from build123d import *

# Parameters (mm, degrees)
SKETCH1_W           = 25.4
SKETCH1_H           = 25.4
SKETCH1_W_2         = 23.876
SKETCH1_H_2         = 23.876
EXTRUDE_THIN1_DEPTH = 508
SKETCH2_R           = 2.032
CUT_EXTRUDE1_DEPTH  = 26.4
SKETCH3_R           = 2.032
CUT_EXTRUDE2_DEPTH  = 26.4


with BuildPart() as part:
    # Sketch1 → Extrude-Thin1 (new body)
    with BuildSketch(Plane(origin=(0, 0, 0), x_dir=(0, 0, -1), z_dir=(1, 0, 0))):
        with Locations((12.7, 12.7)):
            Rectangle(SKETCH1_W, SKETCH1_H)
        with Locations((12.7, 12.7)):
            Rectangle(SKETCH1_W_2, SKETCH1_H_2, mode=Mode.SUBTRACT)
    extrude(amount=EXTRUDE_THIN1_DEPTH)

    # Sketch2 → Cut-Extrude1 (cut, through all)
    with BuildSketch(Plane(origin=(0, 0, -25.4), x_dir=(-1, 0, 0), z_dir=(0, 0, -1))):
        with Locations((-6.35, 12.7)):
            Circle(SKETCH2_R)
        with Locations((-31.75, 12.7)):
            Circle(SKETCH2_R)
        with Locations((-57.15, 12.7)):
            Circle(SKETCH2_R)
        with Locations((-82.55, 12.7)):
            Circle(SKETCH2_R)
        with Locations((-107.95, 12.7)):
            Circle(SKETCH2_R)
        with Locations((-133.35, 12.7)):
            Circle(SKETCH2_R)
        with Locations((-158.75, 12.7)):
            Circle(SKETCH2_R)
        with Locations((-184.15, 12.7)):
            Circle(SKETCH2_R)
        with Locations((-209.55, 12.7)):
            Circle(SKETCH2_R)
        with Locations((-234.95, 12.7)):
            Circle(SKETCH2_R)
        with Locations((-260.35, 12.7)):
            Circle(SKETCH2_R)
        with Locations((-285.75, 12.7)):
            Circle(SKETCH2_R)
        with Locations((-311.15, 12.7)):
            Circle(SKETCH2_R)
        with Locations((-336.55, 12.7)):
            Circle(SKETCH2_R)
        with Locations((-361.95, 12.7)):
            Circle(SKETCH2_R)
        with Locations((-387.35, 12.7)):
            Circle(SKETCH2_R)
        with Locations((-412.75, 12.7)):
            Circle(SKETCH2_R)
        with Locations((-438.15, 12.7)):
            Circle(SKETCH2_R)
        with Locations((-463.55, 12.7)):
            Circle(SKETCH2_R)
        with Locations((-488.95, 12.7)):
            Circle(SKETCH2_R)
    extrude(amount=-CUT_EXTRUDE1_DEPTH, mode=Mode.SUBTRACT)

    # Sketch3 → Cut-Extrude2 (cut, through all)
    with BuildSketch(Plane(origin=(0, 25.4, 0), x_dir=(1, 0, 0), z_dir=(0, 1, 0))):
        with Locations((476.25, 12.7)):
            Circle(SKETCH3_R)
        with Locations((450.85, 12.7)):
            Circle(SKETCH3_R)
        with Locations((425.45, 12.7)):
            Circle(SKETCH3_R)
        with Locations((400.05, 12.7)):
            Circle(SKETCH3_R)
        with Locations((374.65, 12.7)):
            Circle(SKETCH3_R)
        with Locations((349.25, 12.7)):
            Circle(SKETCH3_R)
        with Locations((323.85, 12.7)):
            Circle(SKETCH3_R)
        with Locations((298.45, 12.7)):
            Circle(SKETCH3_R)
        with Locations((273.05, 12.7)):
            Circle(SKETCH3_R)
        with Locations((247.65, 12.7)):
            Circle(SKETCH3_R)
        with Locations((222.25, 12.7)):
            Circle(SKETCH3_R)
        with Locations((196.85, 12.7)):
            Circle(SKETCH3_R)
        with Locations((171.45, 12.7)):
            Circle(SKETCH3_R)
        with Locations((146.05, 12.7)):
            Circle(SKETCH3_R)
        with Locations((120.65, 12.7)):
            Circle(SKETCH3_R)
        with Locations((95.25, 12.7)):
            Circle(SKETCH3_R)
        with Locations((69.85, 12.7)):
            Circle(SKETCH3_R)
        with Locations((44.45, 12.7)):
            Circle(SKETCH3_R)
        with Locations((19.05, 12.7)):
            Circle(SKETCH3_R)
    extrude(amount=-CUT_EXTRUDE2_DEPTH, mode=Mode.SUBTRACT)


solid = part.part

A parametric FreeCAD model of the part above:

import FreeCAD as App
import Part
import Sketcher

V = App.Vector
Q = App.Units.Quantity


def add_polygon(sketch, points):
    """Adds a closed chain of lines whose ends are joined by coincident constraints."""
    first, n = sketch.GeometryCount, len(points)
    for a, b in zip(points, points[1:] + points[:1]):
        sketch.addGeometry(Part.LineSegment(App.Vector(*a, 0), App.Vector(*b, 0)), False)
    for i in range(n):
        sketch.addConstraint(Sketcher.Constraint("Coincident", first + i, 2, first + (i + 1) % n, 1))

doc = App.newDocument("Part")
body = doc.addObject("PartDesign::Body", "Body")

sketch1 = body.newObject("Sketcher::SketchObject", "Sketch")
sketch1.AttachmentSupport = (doc.getObject("YZ_Plane"), [""])
sketch1.MapMode = "FlatFace"
add_polygon(sketch1, [(25, 0), (0, 0), (0, -25), (25, -25)])
add_polygon(sketch1, [(1, -25), (1, -1), (25, -1), (25, -25)])
sketch1.addConstraint([
    Sketcher.Constraint("Horizontal", 0),
    Sketcher.Constraint("Vertical", 1),
    Sketcher.Constraint("Horizontal", 2),
    Sketcher.Constraint("Vertical", 3),
    Sketcher.Constraint("Vertical", 4),
    Sketcher.Constraint("Horizontal", 5),
    Sketcher.Constraint("Vertical", 6),
    Sketcher.Constraint("Horizontal", 7),
    Sketcher.Constraint("Coincident", 0, 2, -1, 1),
    Sketcher.Constraint("Equal", 2, 1),
    Sketcher.Constraint("Equal", 7, 4),
    Sketcher.Constraint("DistanceX", 0, 2, 0, 1, Q("1 in")),
    Sketcher.Constraint("DistanceX", 5, 1, 5, 2, Q("0.94 in")),
    Sketcher.Constraint("DistanceX", -1, 1, 4, 2, Q("0.03 in")),
    Sketcher.Constraint("DistanceY", 4, 2, -1, 1, Q("0.03 in")),
])
pad1 = body.newObject("PartDesign::Pad", "Pad")
pad1.Profile = sketch1
pad1.Length = Q("20 in")

sketch2 = body.newObject("Sketcher::SketchObject", "Sketch001")
sketch2.AttachmentSupport = (doc.getObject("XY_Plane"), [""])
sketch2.MapMode = "FlatFace"
sketch2.AttachmentOffset = App.Placement(V(0, 0, -1 * 25.4), App.Rotation())
sketch2.addGeometry([
    Part.Circle(V(6.3, 12.7, 0), V(0, 0, 1), 2),
    Part.Circle(V(31.8, 12.7, 0), V(0, 0, 1), 2),
    Part.Circle(V(57.1, 12.7, 0), V(0, 0, 1), 2),
    Part.Circle(V(82.5, 12.7, 0), V(0, 0, 1), 2),
    Part.Circle(V(108, 12.7, 0), V(0, 0, 1), 2),
    Part.Circle(V(133.3, 12.7, 0), V(0, 0, 1), 2),
    Part.Circle(V(158.8, 12.7, 0), V(0, 0, 1), 2),
    Part.Circle(V(184.2, 12.7, 0), V(0, 0, 1), 2),
    Part.Circle(V(209.6, 12.7, 0), V(0, 0, 1), 2),
    Part.Circle(V(234.9, 12.7, 0), V(0, 0, 1), 2),
    Part.Circle(V(260.4, 12.7, 0), V(0, 0, 1), 2),
    Part.Circle(V(285.8, 12.7, 0), V(0, 0, 1), 2),
    Part.Circle(V(311.1, 12.7, 0), V(0, 0, 1), 2),
    Part.Circle(V(336.6, 12.7, 0), V(0, 0, 1), 2),
    Part.Circle(V(361.9, 12.7, 0), V(0, 0, 1), 2),
    Part.Circle(V(387.4, 12.7, 0), V(0, 0, 1), 2),
    Part.Circle(V(412.8, 12.7, 0), V(0, 0, 1), 2),
    Part.Circle(V(438.1, 12.7, 0), V(0, 0, 1), 2),
    Part.Circle(V(463.6, 12.7, 0), V(0, 0, 1), 2),
    Part.Circle(V(488.9, 12.7, 0), V(0, 0, 1), 2),
], False)
sketch2.addConstraint([
    Sketcher.Constraint("Equal", 0, 1),
    Sketcher.Constraint("Equal", 1, 2),
    Sketcher.Constraint("Equal", 2, 3),
    Sketcher.Constraint("Equal", 3, 4),
    Sketcher.Constraint("Equal", 4, 5),
    Sketcher.Constraint("Equal", 5, 6),
    Sketcher.Constraint("Equal", 6, 7),
    Sketcher.Constraint("Equal", 7, 8),
    Sketcher.Constraint("Equal", 8, 9),
    Sketcher.Constraint("Equal", 9, 10),
    Sketcher.Constraint("Equal", 10, 11),
    Sketcher.Constraint("Equal", 11, 12),
    Sketcher.Constraint("Equal", 12, 13),
    Sketcher.Constraint("Equal", 13, 14),
    Sketcher.Constraint("Equal", 14, 15),
    Sketcher.Constraint("Equal", 15, 16),
    Sketcher.Constraint("Equal", 16, 17),
    Sketcher.Constraint("Equal", 17, 18),
    Sketcher.Constraint("Equal", 18, 19),
    Sketcher.Constraint("Horizontal", 0, 3, 1, 3),
    Sketcher.Constraint("Horizontal", 1, 3, 2, 3),
    Sketcher.Constraint("Horizontal", 2, 3, 3, 3),
    Sketcher.Constraint("Horizontal", 3, 3, 4, 3),
    Sketcher.Constraint("Horizontal", 4, 3, 5, 3),
    Sketcher.Constraint("Horizontal", 5, 3, 6, 3),
    Sketcher.Constraint("Horizontal", 6, 3, 7, 3),
    Sketcher.Constraint("Horizontal", 7, 3, 8, 3),
    Sketcher.Constraint("Horizontal", 8, 3, 9, 3),
    Sketcher.Constraint("Horizontal", 9, 3, 10, 3),
    Sketcher.Constraint("Horizontal", 10, 3, 11, 3),
    Sketcher.Constraint("Horizontal", 11, 3, 12, 3),
    Sketcher.Constraint("Horizontal", 12, 3, 13, 3),
    Sketcher.Constraint("Horizontal", 13, 3, 14, 3),
    Sketcher.Constraint("Horizontal", 14, 3, 15, 3),
    Sketcher.Constraint("Horizontal", 15, 3, 16, 3),
    Sketcher.Constraint("Horizontal", 16, 3, 17, 3),
    Sketcher.Constraint("Horizontal", 17, 3, 18, 3),
    Sketcher.Constraint("Horizontal", 18, 3, 19, 3),
    Sketcher.Constraint("Diameter", 0, Q("0.16 in")),
    Sketcher.Constraint("DistanceX", 0, 3, 1, 3, Q("1 in")),
    Sketcher.Constraint("DistanceX", 1, 3, 2, 3, Q("1 in")),
    Sketcher.Constraint("DistanceX", 2, 3, 3, 3, Q("1 in")),
    Sketcher.Constraint("DistanceX", 3, 3, 4, 3, Q("1 in")),
    Sketcher.Constraint("DistanceX", 4, 3, 5, 3, Q("1 in")),
    Sketcher.Constraint("DistanceX", 5, 3, 6, 3, Q("1 in")),
    Sketcher.Constraint("DistanceX", 6, 3, 7, 3, Q("1 in")),
    Sketcher.Constraint("DistanceX", 7, 3, 8, 3, Q("1 in")),
    Sketcher.Constraint("DistanceX", 8, 3, 9, 3, Q("1 in")),
    Sketcher.Constraint("DistanceX", 9, 3, 10, 3, Q("1 in")),
    Sketcher.Constraint("DistanceX", 10, 3, 11, 3, Q("1 in")),
    Sketcher.Constraint("DistanceX", 11, 3, 12, 3, Q("1 in")),
    Sketcher.Constraint("DistanceX", 12, 3, 13, 3, Q("1 in")),
    Sketcher.Constraint("DistanceX", 13, 3, 14, 3, Q("1 in")),
    Sketcher.Constraint("DistanceX", 14, 3, 15, 3, Q("1 in")),
    Sketcher.Constraint("DistanceX", 15, 3, 16, 3, Q("1 in")),
    Sketcher.Constraint("DistanceX", 16, 3, 17, 3, Q("1 in")),
    Sketcher.Constraint("DistanceX", 17, 3, 18, 3, Q("1 in")),
    Sketcher.Constraint("DistanceX", 18, 3, 19, 3, Q("1 in")),
    Sketcher.Constraint("DistanceY", -1, 1, 0, 3, Q("0.5 in")),
    Sketcher.Constraint("DistanceX", -1, 1, 0, 3, Q("0.25 in")),
])
pocket1 = body.newObject("PartDesign::Pocket", "Pocket")
pocket1.Profile = sketch2
pocket1.Type = "ThroughAll"
pocket1.Reversed = True

sketch3 = body.newObject("Sketcher::SketchObject", "Sketch002")
sketch3.AttachmentSupport = (doc.getObject("XZ_Plane"), [""])
sketch3.MapMode = "FlatFace"
sketch3.AttachmentOffset = App.Placement(V(0, 0, -1 * 25.4), App.Rotation())
sketch3.addGeometry([
    Part.Circle(V(476.2, -12.7, 0), V(0, 0, 1), 2),
    Part.Circle(V(450.9, -12.7, 0), V(0, 0, 1), 2),
    Part.Circle(V(425.4, -12.7, 0), V(0, 0, 1), 2),
    Part.Circle(V(400.1, -12.7, 0), V(0, 0, 1), 2),
    Part.Circle(V(374.6, -12.7, 0), V(0, 0, 1), 2),
    Part.Circle(V(349.2, -12.7, 0), V(0, 0, 1), 2),
    Part.Circle(V(323.9, -12.7, 0), V(0, 0, 1), 2),
    Part.Circle(V(298.4, -12.7, 0), V(0, 0, 1), 2),
    Part.Circle(V(273.1, -12.7, 0), V(0, 0, 1), 2),
    Part.Circle(V(247.7, -12.7, 0), V(0, 0, 1), 2),
    Part.Circle(V(222.2, -12.7, 0), V(0, 0, 1), 2),
    Part.Circle(V(196.8, -12.7, 0), V(0, 0, 1), 2),
    Part.Circle(V(171.4, -12.7, 0), V(0, 0, 1), 2),
    Part.Circle(V(146.1, -12.7, 0), V(0, 0, 1), 2),
    Part.Circle(V(120.7, -12.7, 0), V(0, 0, 1), 2),
    Part.Circle(V(95.2, -12.7, 0), V(0, 0, 1), 2),
    Part.Circle(V(69.8, -12.7, 0), V(0, 0, 1), 2),
    Part.Circle(V(44.5, -12.7, 0), V(0, 0, 1), 2),
    Part.Circle(V(19.1, -12.7, 0), V(0, 0, 1), 2),
], False)
sketch3.addConstraint([
    Sketcher.Constraint("Equal", 0, 1),
    Sketcher.Constraint("Equal", 1, 2),
    Sketcher.Constraint("Equal", 2, 3),
    Sketcher.Constraint("Equal", 3, 4),
    Sketcher.Constraint("Equal", 4, 5),
    Sketcher.Constraint("Equal", 5, 6),
    Sketcher.Constraint("Equal", 6, 7),
    Sketcher.Constraint("Equal", 7, 8),
    Sketcher.Constraint("Equal", 8, 9),
    Sketcher.Constraint("Equal", 9, 10),
    Sketcher.Constraint("Equal", 10, 11),
    Sketcher.Constraint("Equal", 11, 12),
    Sketcher.Constraint("Equal", 12, 13),
    Sketcher.Constraint("Equal", 13, 14),
    Sketcher.Constraint("Equal", 14, 15),
    Sketcher.Constraint("Equal", 15, 16),
    Sketcher.Constraint("Equal", 16, 17),
    Sketcher.Constraint("Equal", 17, 18),
    Sketcher.Constraint("Horizontal", 0, 3, 1, 3),
    Sketcher.Constraint("Horizontal", 1, 3, 2, 3),
    Sketcher.Constraint("Horizontal", 2, 3, 3, 3),
    Sketcher.Constraint("Horizontal", 3, 3, 4, 3),
    Sketcher.Constraint("Horizontal", 4, 3, 5, 3),
    Sketcher.Constraint("Horizontal", 5, 3, 6, 3),
    Sketcher.Constraint("Horizontal", 6, 3, 7, 3),
    Sketcher.Constraint("Horizontal", 7, 3, 8, 3),
    Sketcher.Constraint("Horizontal", 8, 3, 9, 3),
    Sketcher.Constraint("Horizontal", 9, 3, 10, 3),
    Sketcher.Constraint("Horizontal", 10, 3, 11, 3),
    Sketcher.Constraint("Horizontal", 11, 3, 12, 3),
    Sketcher.Constraint("Horizontal", 12, 3, 13, 3),
    Sketcher.Constraint("Horizontal", 13, 3, 14, 3),
    Sketcher.Constraint("Horizontal", 14, 3, 15, 3),
    Sketcher.Constraint("Horizontal", 15, 3, 16, 3),
    Sketcher.Constraint("Horizontal", 16, 3, 17, 3),
    Sketcher.Constraint("Horizontal", 17, 3, 18, 3),
    Sketcher.Constraint("Diameter", 0, Q("0.16 in")),
    Sketcher.Constraint("DistanceX", 1, 3, 0, 3, Q("1 in")),
    Sketcher.Constraint("DistanceX", 2, 3, 1, 3, Q("1 in")),
    Sketcher.Constraint("DistanceX", 3, 3, 2, 3, Q("1 in")),
    Sketcher.Constraint("DistanceX", 4, 3, 3, 3, Q("1 in")),
    Sketcher.Constraint("DistanceX", 5, 3, 4, 3, Q("1 in")),
    Sketcher.Constraint("DistanceX", 6, 3, 5, 3, Q("1 in")),
    Sketcher.Constraint("DistanceX", 7, 3, 6, 3, Q("1 in")),
    Sketcher.Constraint("DistanceX", 8, 3, 7, 3, Q("1 in")),
    Sketcher.Constraint("DistanceX", 9, 3, 8, 3, Q("1 in")),
    Sketcher.Constraint("DistanceX", 10, 3, 9, 3, Q("1 in")),
    Sketcher.Constraint("DistanceX", 11, 3, 10, 3, Q("1 in")),
    Sketcher.Constraint("DistanceX", 12, 3, 11, 3, Q("1 in")),
    Sketcher.Constraint("DistanceX", 13, 3, 12, 3, Q("1 in")),
    Sketcher.Constraint("DistanceX", 14, 3, 13, 3, Q("1 in")),
    Sketcher.Constraint("DistanceX", 15, 3, 14, 3, Q("1 in")),
    Sketcher.Constraint("DistanceX", 16, 3, 15, 3, Q("1 in")),
    Sketcher.Constraint("DistanceX", 17, 3, 16, 3, Q("1 in")),
    Sketcher.Constraint("DistanceX", 18, 3, 17, 3, Q("1 in")),
    Sketcher.Constraint("DistanceY", 0, 3, -1, 1, Q("0.5 in")),
    Sketcher.Constraint("DistanceX", -1, 1, 0, 3, Q("18.75 in")),
])
pocket2 = body.newObject("PartDesign::Pocket", "Pocket001")
pocket2.Profile = sketch3
pocket2.Type = "ThroughAll"
pocket2.Reversed = True

doc.recompute()
